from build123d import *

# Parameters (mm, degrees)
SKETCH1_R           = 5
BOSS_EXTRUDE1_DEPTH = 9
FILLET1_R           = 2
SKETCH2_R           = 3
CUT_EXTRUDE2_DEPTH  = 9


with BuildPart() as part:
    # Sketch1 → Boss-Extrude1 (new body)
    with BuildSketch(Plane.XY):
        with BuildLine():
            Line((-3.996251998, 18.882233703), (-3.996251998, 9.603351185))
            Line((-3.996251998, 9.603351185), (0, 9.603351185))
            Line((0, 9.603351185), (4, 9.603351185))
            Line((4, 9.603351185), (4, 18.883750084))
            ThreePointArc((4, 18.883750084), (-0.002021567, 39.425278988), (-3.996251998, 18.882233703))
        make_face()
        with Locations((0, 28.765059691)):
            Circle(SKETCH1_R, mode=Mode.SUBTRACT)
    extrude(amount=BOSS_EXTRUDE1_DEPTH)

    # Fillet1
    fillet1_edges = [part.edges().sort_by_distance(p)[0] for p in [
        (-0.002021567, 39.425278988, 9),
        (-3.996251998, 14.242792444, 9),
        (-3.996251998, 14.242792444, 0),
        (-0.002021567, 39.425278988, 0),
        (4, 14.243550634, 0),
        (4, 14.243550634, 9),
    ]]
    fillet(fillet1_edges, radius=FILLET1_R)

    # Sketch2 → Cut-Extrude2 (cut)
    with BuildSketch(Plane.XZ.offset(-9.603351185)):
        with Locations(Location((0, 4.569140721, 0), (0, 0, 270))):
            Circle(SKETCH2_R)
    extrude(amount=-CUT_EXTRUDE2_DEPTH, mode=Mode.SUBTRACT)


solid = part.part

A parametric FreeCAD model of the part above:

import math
import FreeCAD as App
import Part
import Sketcher
Q = App.Units.Quantity


def edges_at(feature, points):
    """Names of the edges that pass closest to the given points."""
    edges = feature.Shape.Edges
    near = lambda p: min(range(len(edges)), key=lambda i: edges[i].distToShape(Part.Vertex(*p))[0])
    return sorted({f"Edge{near(p) + 1}" for p in points})

doc = App.newDocument("Part")
body = doc.addObject("PartDesign::Body", "Body")

sketch1 = body.newObject("Sketcher::SketchObject", "Sketch")
sketch1.AttachmentSupport = (doc.getObject("XY_Plane"), [""])
sketch1.MapMode = "FlatFace"
sketch1.addGeometry([
    Part.LineSegment(App.Vector(-4, 19, 0), App.Vector(-4, 10, 0)),
    Part.LineSegment(App.Vector(-4, 10, 0), App.Vector(4, 10, 0)),
    Part.LineSegment(App.Vector(4, 10, 0), App.Vector(4, 19, 0)),
    Part.ArcOfCircle(Part.Circle(App.Vector(0, 29, 0), App.Vector(0, 0, 1), 11), math.radians(-68), math.radians(248)),
    Part.Circle(App.Vector(0, 29, 0), App.Vector(0, 0, 1), 5),
], False)
sketch1.addConstraint([
    Sketcher.Constraint("Coincident", 0, 2, 1, 1),
    Sketcher.Constraint("Coincident", 1, 2, 2, 1),
    Sketcher.Constraint("Coincident", 2, 2, 3, 1),
    Sketcher.Constraint("Coincident", 3, 2, 0, 1),
    Sketcher.Constraint("Vertical", 0),
    Sketcher.Constraint("Horizontal", 1),
    Sketcher.Constraint("Vertical", 2),
    Sketcher.Constraint("Coincident", 4, 3, 3, 3),
    Sketcher.Constraint("PointOnObject", 3, 3, -2),
    Sketcher.Constraint("Diameter", 4, Q("10 mm")),
    Sketcher.Constraint("DistanceX", -1, 1, 1, 2, Q("4 mm")),
    Sketcher.Constraint("Radius", 3, Q("10.660219 mm")),
    Sketcher.Constraint("DistanceY", 2, 1, 2, 2, Q("9.280399 mm")),
    Sketcher.Constraint("DistanceX", 1, 1, 1, 2, Q("7.996252 mm")),
    Sketcher.Constraint("DistanceY", -1, 1, 3, 3, Q("28.76506 mm")),
])
pad1 = body.newObject("PartDesign::Pad", "Pad")
pad1.Profile = sketch1
pad1.Length = 9
doc.recompute()

fillet = body.newObject("PartDesign::Fillet", "Fillet")
fillet.Base = (pad1, edges_at(pad1, [
    (-0.002, 39.425, 9),
    (-3.996, 14.243, 9),
    (-3.996, 14.243, 0),
    (-0.002, 39.425, 0),
    (4, 14.244, 0),
    (4, 14.244, 9),
]))
fillet.Radius = 2

sketch2 = body.newObject("Sketcher::SketchObject", "Sketch001")
sketch2.AttachmentSupport = (doc.getObject("XZ_Plane"), [""])
sketch2.MapMode = "FlatFace"
sketch2.AttachmentOffset = App.Placement(App.Vector(0, 0, -9.603351), App.Rotation())
sketch2.addGeometry(Part.Circle(App.Vector(0, 4.6, 0), App.Vector(0, 0, 1), 3), False)
sketch2.addConstraint([
    Sketcher.Constraint("PointOnObject", 0, 3, -2),
    Sketcher.Constraint("Diameter", 0, Q("6 mm")),
    Sketcher.Constraint("DistanceY", -1, 1, 0, 3, Q("4.569141 mm")),
])
pocket1 = body.newObject("PartDesign::Pocket", "Pocket")
pocket1.Profile = sketch2
pocket1.Length = 9

doc.recompute()
